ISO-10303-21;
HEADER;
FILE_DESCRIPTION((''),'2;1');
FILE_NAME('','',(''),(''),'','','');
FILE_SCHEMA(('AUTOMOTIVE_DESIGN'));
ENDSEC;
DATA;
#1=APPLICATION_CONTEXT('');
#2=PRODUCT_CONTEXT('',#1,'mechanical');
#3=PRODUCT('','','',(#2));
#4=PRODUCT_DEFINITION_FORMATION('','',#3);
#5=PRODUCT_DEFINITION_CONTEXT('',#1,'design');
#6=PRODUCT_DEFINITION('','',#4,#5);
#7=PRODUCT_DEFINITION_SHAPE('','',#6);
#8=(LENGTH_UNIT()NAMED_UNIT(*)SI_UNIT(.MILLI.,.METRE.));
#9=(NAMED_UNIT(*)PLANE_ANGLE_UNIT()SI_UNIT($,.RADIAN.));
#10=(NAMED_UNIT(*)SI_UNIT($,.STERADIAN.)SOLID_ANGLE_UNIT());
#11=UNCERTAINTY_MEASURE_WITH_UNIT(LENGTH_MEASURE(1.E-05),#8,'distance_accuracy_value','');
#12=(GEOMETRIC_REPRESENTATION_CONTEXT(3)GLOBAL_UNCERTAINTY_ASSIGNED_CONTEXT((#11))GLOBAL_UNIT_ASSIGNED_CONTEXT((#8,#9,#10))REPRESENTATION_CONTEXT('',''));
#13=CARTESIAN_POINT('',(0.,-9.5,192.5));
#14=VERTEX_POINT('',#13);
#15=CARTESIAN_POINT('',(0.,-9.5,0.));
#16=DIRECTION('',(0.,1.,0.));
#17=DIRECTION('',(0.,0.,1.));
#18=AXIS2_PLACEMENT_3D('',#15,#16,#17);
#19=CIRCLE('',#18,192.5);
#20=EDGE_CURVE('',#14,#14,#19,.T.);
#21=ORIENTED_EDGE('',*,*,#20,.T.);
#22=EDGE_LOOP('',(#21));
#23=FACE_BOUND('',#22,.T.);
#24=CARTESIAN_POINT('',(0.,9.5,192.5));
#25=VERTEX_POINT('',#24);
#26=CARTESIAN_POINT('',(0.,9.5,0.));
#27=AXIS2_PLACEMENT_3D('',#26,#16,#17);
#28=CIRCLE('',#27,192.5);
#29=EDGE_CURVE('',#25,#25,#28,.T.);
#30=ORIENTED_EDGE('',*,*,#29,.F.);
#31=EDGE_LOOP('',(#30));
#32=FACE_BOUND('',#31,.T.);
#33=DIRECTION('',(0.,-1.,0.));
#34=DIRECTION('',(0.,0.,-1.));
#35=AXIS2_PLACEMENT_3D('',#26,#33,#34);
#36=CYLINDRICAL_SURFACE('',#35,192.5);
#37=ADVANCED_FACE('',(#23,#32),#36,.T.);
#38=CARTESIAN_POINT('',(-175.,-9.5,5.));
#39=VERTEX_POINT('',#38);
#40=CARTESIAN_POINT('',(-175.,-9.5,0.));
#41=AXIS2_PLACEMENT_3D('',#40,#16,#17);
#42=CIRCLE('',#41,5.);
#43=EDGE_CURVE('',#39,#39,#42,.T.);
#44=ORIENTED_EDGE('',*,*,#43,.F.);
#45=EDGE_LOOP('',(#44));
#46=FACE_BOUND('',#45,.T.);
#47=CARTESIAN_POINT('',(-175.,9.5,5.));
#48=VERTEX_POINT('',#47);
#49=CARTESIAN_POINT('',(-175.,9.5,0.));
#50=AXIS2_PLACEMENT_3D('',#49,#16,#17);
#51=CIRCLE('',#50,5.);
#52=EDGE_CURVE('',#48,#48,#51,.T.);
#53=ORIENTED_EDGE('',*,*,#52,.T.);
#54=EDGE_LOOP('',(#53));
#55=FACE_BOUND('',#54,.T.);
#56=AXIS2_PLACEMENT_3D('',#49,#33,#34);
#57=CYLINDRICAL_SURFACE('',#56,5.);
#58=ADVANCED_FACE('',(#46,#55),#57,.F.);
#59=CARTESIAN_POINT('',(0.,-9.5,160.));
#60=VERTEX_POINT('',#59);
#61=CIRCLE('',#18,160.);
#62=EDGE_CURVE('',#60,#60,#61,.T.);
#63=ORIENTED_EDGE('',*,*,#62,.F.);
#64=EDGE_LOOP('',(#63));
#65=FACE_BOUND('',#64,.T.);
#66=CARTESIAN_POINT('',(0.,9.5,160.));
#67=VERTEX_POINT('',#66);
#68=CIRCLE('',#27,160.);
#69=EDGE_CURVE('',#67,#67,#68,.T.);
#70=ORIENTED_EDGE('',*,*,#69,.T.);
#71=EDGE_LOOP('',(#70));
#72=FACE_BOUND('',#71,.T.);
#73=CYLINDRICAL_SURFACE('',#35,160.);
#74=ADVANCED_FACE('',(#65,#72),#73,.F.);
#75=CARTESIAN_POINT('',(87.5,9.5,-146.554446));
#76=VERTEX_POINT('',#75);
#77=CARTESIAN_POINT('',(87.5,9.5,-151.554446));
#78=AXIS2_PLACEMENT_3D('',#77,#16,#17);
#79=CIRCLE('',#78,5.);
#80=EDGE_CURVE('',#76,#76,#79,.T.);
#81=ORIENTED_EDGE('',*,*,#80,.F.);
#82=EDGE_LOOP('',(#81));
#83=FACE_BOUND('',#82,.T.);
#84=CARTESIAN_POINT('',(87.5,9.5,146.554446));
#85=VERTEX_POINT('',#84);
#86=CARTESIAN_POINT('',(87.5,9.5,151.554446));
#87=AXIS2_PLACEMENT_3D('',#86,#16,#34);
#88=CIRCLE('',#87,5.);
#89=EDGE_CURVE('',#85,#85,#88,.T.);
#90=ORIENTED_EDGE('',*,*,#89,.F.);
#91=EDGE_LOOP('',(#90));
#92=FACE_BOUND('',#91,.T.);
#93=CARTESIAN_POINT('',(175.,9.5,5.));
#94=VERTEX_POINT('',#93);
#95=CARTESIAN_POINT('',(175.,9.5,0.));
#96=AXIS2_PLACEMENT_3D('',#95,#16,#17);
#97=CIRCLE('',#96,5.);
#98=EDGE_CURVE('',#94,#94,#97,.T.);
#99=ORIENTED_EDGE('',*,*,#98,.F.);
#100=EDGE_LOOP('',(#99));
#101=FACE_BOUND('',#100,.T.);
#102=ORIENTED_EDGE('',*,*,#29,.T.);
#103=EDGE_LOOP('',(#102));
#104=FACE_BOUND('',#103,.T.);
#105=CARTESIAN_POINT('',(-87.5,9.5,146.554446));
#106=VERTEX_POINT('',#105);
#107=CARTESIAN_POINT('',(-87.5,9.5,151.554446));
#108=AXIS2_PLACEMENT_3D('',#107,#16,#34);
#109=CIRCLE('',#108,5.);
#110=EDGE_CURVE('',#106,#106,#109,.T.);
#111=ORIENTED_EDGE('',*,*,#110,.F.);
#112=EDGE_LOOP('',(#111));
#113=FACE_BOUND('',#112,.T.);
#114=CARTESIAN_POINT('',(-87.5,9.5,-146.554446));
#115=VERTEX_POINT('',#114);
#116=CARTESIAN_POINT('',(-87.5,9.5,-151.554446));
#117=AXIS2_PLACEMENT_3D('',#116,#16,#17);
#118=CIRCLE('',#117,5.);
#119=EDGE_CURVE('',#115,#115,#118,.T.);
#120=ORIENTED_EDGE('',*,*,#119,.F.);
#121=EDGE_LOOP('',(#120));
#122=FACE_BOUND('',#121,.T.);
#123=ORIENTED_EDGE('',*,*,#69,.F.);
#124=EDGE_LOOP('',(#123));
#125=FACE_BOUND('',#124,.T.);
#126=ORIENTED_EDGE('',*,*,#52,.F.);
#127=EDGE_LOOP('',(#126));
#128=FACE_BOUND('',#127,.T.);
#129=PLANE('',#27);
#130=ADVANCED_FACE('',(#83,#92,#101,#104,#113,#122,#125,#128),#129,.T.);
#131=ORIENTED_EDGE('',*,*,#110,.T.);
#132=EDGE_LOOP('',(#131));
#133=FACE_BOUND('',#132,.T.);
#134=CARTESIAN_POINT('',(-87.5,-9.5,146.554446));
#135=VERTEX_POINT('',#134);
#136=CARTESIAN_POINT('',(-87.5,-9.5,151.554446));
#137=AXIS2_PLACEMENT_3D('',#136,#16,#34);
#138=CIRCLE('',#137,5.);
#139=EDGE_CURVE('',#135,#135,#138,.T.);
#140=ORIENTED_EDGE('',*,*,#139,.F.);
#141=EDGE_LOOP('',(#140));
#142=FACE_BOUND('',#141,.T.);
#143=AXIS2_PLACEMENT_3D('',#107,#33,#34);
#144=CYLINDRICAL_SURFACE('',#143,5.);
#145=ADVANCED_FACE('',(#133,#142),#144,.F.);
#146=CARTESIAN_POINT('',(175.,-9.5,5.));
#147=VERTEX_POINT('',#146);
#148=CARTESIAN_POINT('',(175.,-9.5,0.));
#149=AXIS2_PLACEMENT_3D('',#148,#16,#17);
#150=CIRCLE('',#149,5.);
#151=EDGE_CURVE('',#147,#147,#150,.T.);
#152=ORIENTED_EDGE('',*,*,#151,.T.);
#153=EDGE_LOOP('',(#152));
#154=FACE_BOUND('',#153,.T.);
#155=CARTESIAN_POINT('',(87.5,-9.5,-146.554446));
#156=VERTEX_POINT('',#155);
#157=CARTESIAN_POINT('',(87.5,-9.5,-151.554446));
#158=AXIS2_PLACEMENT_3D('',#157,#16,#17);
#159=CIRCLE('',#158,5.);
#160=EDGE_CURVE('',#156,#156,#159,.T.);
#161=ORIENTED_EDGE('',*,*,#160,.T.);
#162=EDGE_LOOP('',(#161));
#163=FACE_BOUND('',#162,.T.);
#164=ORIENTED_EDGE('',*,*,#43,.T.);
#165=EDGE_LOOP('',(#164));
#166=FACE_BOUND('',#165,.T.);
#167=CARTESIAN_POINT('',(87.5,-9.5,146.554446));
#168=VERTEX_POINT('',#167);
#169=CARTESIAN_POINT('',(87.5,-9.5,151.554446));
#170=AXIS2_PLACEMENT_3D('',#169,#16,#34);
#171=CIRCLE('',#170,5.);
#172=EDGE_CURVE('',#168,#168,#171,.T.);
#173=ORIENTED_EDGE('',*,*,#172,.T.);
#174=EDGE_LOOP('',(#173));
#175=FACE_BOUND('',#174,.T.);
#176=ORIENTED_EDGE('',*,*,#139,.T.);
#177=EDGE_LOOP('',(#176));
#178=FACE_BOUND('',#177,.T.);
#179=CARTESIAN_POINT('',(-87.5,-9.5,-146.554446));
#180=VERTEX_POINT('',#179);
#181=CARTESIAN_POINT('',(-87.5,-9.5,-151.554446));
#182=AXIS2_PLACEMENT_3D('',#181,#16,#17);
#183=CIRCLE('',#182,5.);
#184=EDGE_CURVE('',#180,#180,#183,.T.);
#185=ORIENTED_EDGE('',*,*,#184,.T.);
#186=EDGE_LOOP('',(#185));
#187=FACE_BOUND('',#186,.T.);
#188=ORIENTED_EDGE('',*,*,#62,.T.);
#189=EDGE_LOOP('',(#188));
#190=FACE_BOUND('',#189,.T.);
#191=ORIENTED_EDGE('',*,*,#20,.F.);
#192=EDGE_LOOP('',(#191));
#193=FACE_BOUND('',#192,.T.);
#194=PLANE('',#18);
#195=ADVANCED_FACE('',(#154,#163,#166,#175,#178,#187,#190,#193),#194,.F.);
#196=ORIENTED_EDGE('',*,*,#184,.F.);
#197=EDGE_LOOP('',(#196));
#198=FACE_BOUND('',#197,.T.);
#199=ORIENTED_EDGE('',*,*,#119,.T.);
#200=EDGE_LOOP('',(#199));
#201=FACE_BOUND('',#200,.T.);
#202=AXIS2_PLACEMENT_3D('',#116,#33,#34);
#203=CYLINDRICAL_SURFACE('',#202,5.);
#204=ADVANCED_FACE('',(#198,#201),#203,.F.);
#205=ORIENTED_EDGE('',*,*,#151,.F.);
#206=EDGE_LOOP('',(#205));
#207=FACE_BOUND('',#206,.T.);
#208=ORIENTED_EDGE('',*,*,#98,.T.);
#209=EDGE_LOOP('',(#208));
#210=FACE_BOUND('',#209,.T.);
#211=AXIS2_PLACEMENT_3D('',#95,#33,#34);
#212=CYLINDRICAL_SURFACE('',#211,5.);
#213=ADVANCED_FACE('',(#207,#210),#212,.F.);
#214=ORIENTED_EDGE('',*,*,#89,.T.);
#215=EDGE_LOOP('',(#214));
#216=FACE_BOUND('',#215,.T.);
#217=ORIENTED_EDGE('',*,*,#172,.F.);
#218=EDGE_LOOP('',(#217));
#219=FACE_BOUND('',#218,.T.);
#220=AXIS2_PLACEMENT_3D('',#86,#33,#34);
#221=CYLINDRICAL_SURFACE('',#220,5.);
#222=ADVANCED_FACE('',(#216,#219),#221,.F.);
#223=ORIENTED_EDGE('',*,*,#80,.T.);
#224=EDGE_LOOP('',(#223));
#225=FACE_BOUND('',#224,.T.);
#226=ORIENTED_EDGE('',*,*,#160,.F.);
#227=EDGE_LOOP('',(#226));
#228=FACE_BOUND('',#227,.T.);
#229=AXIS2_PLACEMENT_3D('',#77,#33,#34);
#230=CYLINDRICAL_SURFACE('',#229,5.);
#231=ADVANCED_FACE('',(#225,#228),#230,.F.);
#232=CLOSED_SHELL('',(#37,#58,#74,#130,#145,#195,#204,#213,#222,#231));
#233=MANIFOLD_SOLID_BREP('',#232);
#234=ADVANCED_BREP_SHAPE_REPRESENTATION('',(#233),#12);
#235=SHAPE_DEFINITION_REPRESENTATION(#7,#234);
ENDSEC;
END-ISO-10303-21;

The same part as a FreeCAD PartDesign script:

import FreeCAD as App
import Part
import Sketcher

V = App.Vector
Q = App.Units.Quantity

doc = App.newDocument("Part")
params = doc.addObject("Spreadsheet::Sheet", "Params")
for row, (alias, value) in enumerate([
    ("sketch1_diameter", "385 mm"),
    ("sketch1_diameter2", "10 mm"),
    ("sketch1_diameter3", "320 mm"),
    ("pad1_length", "19 mm"),
], start=1):
    params.set(f"A{row}", alias)
    params.set(f"B{row}", "=" + value)
    params.setAlias(f"B{row}", alias)

body = doc.addObject("PartDesign::Body", "Body")

sketch1 = body.newObject("Sketcher::SketchObject", "Sketch")
sketch1.AttachmentSupport = (doc.getObject("XZ_Plane"), [""])
sketch1.MapMode = "FlatFace"
sketch1.addGeometry([
    Part.Circle(V(0, 0, 0), V(0, 0, 1), 192),
    Part.Circle(V(-88, -152, 0), V(0, 0, 1), 5),
    Part.Circle(V(-175, 0, 0), V(0, 0, 1), 5),
    Part.Circle(V(-88, 152, 0), V(0, 0, 1), 5),
    Part.Circle(V(88, -152, 0), V(0, 0, 1), 5),
    Part.Circle(V(175, 0, 0), V(0, 0, 1), 5),
    Part.Circle(V(0, 0, 0), V(0, 0, 1), 160),
    Part.Circle(V(88, 152, 0), V(0, 0, 1), 5),
], False)
sketch1.addConstraint([
    Sketcher.Constraint("Coincident", 0, 3, -1, 1),
    Sketcher.Constraint("Coincident", 6, 3, -1, 1),
    Sketcher.Constraint("Equal", 1, 2),
    Sketcher.Constraint("Equal", 2, 3),
    Sketcher.Constraint("Equal", 3, 4),
    Sketcher.Constraint("Equal", 4, 5),
    Sketcher.Constraint("Equal", 5, 7),
    Sketcher.Constraint("Symmetric", 3, 3, 4, 3, -1, 1),
    Sketcher.Constraint("Symmetric", 2, 3, 5, 3, -1, 1),
    Sketcher.Constraint("Symmetric", 1, 3, 7, 3, -1, 1),
    Sketcher.Constraint("Symmetric", 1, 3, 4, 3, -2),
    Sketcher.Constraint("PointOnObject", 2, 3, -1),
    Sketcher.Constraint("Diameter", 0, Q("385 mm")),
    Sketcher.Constraint("Diameter", 1, Q("10 mm")),
    Sketcher.Constraint("Diameter", 6, Q("320 mm")),
    Sketcher.Constraint("DistanceX", 2, 3, -1, 1, Q("175 mm")),
    Sketcher.Constraint("DistanceX", 1, 3, 4, 3, Q("175 mm")),
    Sketcher.Constraint("DistanceY", 1, 3, 3, 3, Q("303.108891 mm")),
])
sketch1.setExpression("Constraints[12]", "Params.sketch1_diameter")
sketch1.setExpression("Constraints[13]", "Params.sketch1_diameter2")
sketch1.setExpression("Constraints[14]", "Params.sketch1_diameter3")
pad1 = body.newObject("PartDesign::Pad", "Pad")
pad1.Profile = sketch1
pad1.setExpression("Length", "Params.pad1_length")
pad1.Midplane = True

doc.recompute()
